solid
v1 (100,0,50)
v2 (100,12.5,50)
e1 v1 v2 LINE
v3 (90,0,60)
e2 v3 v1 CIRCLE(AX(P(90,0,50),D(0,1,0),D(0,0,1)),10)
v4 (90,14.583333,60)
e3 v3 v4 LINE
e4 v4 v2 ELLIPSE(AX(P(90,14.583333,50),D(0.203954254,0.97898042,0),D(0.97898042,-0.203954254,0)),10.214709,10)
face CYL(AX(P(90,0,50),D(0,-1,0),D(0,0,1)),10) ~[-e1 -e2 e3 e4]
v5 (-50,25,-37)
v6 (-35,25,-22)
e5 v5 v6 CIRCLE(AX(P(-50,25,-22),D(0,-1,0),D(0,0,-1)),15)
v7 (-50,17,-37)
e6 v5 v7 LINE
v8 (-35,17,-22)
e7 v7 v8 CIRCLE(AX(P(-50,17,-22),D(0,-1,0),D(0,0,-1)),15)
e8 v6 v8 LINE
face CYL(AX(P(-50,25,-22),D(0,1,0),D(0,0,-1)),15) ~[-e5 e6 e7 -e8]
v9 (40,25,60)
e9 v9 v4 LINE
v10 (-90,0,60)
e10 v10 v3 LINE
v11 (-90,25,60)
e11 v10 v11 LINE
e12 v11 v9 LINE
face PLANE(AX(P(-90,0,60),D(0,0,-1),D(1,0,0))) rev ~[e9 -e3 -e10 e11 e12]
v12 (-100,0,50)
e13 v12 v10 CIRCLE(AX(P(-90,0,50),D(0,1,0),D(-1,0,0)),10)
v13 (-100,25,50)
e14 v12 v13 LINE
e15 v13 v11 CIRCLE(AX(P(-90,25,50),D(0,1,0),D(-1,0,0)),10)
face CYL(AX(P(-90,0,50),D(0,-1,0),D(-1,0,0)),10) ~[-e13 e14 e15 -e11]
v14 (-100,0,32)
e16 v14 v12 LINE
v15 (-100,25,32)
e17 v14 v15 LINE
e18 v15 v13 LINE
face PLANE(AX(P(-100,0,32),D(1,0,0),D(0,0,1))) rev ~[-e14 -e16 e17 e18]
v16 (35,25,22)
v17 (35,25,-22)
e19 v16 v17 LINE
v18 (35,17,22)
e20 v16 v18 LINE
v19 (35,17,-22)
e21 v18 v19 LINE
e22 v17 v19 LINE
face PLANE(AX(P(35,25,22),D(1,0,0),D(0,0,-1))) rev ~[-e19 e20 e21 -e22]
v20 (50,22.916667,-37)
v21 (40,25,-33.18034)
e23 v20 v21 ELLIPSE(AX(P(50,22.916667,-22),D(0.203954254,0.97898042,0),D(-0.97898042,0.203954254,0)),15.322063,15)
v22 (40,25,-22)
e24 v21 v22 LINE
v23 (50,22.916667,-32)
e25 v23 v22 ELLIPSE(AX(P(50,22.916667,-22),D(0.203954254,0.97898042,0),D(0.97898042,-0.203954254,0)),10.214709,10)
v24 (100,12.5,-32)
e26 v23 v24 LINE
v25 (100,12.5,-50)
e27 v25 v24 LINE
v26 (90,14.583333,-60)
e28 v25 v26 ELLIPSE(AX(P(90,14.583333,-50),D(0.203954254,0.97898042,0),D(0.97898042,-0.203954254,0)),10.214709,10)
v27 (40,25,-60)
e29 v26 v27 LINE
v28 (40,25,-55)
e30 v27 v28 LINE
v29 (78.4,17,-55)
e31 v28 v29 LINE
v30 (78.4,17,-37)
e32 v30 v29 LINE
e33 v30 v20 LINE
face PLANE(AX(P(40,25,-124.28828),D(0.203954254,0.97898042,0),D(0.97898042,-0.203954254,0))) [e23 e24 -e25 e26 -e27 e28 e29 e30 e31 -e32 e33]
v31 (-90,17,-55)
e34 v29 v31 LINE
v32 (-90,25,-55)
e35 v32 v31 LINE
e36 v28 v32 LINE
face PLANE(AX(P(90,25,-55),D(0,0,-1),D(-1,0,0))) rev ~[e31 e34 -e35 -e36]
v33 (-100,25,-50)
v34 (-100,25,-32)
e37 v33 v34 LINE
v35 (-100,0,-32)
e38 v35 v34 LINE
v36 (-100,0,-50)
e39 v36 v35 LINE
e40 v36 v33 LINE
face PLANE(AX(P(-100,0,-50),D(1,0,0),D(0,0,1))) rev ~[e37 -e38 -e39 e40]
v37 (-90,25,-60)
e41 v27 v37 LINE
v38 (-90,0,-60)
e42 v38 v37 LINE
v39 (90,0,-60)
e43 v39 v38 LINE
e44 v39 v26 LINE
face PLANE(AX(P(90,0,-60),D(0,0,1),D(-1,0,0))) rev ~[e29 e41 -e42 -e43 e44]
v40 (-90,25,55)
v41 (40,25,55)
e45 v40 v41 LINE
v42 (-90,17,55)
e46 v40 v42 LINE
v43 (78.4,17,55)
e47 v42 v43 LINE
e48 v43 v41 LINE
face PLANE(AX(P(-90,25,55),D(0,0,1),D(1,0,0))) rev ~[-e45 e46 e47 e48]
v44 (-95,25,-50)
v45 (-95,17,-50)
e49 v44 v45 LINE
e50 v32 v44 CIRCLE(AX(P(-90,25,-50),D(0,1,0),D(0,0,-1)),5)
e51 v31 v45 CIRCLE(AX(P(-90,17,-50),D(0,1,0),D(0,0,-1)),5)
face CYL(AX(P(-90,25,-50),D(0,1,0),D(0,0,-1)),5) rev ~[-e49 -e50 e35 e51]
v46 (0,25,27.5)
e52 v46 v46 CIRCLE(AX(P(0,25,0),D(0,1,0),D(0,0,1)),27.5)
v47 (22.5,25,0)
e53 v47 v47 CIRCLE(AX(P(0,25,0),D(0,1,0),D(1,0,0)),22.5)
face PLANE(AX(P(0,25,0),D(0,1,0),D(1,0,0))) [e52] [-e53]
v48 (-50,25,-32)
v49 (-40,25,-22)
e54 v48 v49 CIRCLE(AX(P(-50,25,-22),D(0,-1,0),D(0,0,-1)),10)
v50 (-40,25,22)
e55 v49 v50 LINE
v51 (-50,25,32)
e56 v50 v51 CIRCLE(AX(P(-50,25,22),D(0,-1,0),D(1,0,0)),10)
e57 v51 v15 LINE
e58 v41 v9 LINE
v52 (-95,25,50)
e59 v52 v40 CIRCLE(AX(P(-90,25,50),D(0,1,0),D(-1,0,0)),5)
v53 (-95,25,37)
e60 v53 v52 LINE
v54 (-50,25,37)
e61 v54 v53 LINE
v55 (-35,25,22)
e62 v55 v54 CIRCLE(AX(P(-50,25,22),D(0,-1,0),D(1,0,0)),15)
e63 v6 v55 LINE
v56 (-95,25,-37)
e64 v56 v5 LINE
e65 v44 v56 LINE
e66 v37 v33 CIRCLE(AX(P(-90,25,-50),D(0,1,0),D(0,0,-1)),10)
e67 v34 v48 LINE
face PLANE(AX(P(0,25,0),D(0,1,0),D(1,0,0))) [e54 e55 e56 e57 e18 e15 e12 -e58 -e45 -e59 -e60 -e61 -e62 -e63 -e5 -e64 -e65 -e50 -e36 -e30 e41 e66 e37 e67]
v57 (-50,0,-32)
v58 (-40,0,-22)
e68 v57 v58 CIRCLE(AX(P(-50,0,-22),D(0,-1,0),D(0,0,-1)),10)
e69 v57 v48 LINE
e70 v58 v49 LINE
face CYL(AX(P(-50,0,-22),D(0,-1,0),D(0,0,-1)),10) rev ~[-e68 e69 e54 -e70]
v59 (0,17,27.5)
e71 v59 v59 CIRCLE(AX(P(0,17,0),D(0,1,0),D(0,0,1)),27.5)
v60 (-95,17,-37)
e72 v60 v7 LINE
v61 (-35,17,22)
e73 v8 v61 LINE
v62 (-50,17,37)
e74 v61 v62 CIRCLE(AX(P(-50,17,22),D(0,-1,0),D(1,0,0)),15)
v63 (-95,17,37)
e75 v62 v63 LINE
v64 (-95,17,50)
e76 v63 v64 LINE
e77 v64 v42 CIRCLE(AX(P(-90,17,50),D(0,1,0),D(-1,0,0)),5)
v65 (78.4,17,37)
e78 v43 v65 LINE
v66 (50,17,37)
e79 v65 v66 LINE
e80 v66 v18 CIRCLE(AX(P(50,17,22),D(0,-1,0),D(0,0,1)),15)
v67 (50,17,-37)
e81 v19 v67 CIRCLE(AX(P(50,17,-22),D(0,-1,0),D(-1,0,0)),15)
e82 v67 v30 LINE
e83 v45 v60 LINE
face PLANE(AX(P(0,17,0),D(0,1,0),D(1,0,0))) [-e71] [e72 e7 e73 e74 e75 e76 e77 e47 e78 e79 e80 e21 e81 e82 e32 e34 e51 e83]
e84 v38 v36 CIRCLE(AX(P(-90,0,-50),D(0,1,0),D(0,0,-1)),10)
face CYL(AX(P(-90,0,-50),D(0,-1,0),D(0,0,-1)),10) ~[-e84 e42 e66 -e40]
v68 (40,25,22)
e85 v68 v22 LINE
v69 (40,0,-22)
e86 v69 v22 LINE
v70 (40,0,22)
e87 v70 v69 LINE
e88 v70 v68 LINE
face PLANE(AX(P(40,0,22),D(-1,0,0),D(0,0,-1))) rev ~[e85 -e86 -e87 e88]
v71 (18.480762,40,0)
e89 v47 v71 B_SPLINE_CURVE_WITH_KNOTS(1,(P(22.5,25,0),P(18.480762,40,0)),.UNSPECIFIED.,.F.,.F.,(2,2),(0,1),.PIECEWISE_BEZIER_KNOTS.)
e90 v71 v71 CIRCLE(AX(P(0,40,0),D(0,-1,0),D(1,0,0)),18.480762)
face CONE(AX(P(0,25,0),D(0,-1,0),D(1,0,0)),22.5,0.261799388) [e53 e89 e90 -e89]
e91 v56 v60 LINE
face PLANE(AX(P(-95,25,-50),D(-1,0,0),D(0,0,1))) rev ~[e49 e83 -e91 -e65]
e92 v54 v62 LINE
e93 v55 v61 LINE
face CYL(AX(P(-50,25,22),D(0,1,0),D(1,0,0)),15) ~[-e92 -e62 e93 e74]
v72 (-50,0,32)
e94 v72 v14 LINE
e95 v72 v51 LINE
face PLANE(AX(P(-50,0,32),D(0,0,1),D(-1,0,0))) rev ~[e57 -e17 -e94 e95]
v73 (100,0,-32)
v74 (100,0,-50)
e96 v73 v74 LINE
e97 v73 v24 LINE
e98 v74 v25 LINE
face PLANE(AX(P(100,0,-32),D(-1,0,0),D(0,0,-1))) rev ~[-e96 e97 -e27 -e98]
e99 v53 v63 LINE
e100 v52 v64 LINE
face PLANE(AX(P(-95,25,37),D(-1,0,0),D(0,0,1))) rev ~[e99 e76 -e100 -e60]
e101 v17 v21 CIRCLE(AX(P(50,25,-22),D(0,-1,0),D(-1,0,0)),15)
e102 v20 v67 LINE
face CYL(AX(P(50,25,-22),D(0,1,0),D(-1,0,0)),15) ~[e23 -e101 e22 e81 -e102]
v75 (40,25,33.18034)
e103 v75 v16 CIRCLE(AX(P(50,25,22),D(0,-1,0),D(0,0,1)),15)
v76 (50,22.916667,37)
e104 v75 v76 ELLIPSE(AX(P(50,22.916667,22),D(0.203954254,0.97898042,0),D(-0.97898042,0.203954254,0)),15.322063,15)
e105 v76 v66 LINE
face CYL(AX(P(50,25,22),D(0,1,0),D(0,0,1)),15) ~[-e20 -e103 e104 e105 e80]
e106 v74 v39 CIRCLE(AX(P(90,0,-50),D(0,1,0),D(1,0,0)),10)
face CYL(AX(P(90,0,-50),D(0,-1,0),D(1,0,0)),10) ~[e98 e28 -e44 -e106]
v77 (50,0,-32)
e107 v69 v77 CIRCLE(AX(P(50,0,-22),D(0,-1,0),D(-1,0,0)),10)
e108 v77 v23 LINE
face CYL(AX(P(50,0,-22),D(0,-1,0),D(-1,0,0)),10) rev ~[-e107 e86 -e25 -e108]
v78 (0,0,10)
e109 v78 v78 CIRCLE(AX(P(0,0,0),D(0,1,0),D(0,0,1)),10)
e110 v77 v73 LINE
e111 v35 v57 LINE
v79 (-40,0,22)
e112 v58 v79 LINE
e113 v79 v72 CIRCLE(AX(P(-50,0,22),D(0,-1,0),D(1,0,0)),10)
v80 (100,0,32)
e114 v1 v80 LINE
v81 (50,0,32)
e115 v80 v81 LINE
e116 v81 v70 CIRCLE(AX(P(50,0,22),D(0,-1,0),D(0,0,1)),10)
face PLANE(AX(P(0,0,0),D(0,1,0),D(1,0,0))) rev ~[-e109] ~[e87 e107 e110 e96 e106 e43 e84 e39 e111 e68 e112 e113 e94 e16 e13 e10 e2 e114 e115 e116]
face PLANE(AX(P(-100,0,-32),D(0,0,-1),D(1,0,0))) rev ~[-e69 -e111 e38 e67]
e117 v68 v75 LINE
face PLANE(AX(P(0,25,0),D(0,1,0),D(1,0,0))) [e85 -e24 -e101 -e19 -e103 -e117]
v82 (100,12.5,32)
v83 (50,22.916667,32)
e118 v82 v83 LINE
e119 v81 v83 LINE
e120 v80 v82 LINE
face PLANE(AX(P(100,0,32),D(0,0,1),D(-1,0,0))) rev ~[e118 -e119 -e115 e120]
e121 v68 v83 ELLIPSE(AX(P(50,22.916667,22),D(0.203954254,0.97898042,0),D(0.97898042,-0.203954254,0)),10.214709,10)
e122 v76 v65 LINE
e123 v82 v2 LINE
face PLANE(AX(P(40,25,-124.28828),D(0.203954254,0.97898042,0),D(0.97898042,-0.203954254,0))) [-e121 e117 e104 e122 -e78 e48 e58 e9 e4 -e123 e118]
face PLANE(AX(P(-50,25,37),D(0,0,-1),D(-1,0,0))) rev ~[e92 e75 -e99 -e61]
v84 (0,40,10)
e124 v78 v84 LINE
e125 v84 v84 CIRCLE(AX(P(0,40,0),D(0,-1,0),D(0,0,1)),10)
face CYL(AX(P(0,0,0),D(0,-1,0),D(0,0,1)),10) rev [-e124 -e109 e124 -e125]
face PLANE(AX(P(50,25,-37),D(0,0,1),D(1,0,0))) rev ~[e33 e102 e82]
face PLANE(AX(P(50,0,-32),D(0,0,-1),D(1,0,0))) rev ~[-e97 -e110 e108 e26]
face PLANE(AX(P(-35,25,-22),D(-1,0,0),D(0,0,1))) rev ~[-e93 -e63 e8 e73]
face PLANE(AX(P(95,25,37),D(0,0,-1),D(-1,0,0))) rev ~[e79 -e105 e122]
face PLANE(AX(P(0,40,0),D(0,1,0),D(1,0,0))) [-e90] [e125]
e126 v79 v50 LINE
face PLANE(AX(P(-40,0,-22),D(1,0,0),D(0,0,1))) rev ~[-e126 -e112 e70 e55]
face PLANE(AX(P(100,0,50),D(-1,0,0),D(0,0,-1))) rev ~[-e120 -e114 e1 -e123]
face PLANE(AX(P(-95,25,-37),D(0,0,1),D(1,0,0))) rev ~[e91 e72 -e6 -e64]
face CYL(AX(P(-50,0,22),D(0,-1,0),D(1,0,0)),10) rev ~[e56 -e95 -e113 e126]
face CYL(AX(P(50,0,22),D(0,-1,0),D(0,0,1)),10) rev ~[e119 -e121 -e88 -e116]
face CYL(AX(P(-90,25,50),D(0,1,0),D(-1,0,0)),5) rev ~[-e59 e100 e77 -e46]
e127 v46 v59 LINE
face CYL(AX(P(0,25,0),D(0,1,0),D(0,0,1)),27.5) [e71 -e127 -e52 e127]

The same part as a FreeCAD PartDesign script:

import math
import FreeCAD as App
import Part
import Sketcher

V = App.Vector
Q = App.Units.Quantity

doc = App.newDocument("Part")
body = doc.addObject("PartDesign::Body", "Body")

sketch1 = body.newObject("Sketcher::SketchObject", "Sketch")
sketch1.AttachmentSupport = (doc.getObject("XZ_Plane"), [""])
sketch1.MapMode = "FlatFace"
sketch1.addGeometry(Part.LineSegment(V(-90, 60, 0), V(90, 60, 0)), False)
sketch1.addGeometry(Part.ArcOfCircle(Part.Circle(V(90, 50, 0), V(0, 0, 1), 10), math.radians(0), math.radians(90)), False)
sketch1.addGeometry(Part.LineSegment(V(100, 50, 0), V(100, 32, 0)), False)
sketch1.addGeometry(Part.LineSegment(V(100, 32, 0), V(50, 32, 0)), False)
sketch1.addGeometry(Part.ArcOfCircle(Part.Circle(V(50, 22, 0), V(0, 0, 1), 10), math.radians(90), math.radians(180)), False)
sketch1.addGeometry(Part.LineSegment(V(40, 22, 0), V(40, -22, 0)), False)
sketch1.addGeometry(Part.ArcOfCircle(Part.Circle(V(50, -22, 0), V(0, 0, 1), 10), math.radians(180), math.radians(270)), False)
sketch1.addGeometry(Part.LineSegment(V(50, -32, 0), V(100, -32, 0)), False)
sketch1.addGeometry(Part.LineSegment(V(100, -32, 0), V(100, -50, 0)), False)
sketch1.addGeometry(Part.ArcOfCircle(Part.Circle(V(90, -50, 0), V(0, 0, 1), 10), math.radians(-90), math.radians(0)), False)
sketch1.addGeometry(Part.LineSegment(V(90, -60, 0), V(-90, -60, 0)), False)
sketch1.addGeometry(Part.ArcOfCircle(Part.Circle(V(-90, -50, 0), V(0, 0, 1), 10), math.radians(180), math.radians(270)), False)
sketch1.addGeometry(Part.LineSegment(V(-100, -50, 0), V(-100, -32, 0)), False)
sketch1.addGeometry(Part.LineSegment(V(-100, -32, 0), V(-50, -32, 0)), False)
sketch1.addGeometry(Part.ArcOfCircle(Part.Circle(V(-50, -22, 0), V(0, 0, 1), 10), math.radians(-90), math.radians(0)), False)
sketch1.addGeometry(Part.LineSegment(V(-40, -22, 0), V(-40, 22, 0)), False)
sketch1.addGeometry(Part.ArcOfCircle(Part.Circle(V(-50, 22, 0), V(0, 0, 1), 10), math.radians(0), math.radians(90)), False)
sketch1.addGeometry(Part.LineSegment(V(-50, 32, 0), V(-100, 32, 0)), False)
sketch1.addGeometry(Part.LineSegment(V(-100, 32, 0), V(-100, 50, 0)), False)
sketch1.addGeometry(Part.ArcOfCircle(Part.Circle(V(-90, 50, 0), V(0, 0, 1), 10), math.radians(90), math.radians(180)), False)
sketch1.addConstraint(Sketcher.Constraint("Tangent", 0, 2, 1, 2))
sketch1.addConstraint(Sketcher.Constraint("Tangent", 1, 1, 2, 1))
sketch1.addConstraint(Sketcher.Constraint("Coincident", 2, 2, 3, 1))
sketch1.addConstraint(Sketcher.Constraint("Tangent", 3, 2, 4, 1))
sketch1.addConstraint(Sketcher.Constraint("Tangent", 4, 2, 5, 1))
sketch1.addConstraint(Sketcher.Constraint("Tangent", 5, 2, 6, 1))
sketch1.addConstraint(Sketcher.Constraint("Tangent", 6, 2, 7, 1))
sketch1.addConstraint(Sketcher.Constraint("Coincident", 7, 2, 8, 1))
sketch1.addConstraint(Sketcher.Constraint("Tangent", 8, 2, 9, 2))
sketch1.addConstraint(Sketcher.Constraint("Tangent", 9, 1, 10, 1))
sketch1.addConstraint(Sketcher.Constraint("Tangent", 10, 2, 11, 2))
sketch1.addConstraint(Sketcher.Constraint("Tangent", 11, 1, 12, 1))
sketch1.addConstraint(Sketcher.Constraint("Coincident", 12, 2, 13, 1))
sketch1.addConstraint(Sketcher.Constraint("Tangent", 13, 2, 14, 1))
sketch1.addConstraint(Sketcher.Constraint("Tangent", 14, 2, 15, 1))
sketch1.addConstraint(Sketcher.Constraint("Tangent", 15, 2, 16, 1))
sketch1.addConstraint(Sketcher.Constraint("Tangent", 16, 2, 17, 1))
sketch1.addConstraint(Sketcher.Constraint("Coincident", 17, 2, 18, 1))
sketch1.addConstraint(Sketcher.Constraint("Tangent", 18, 2, 19, 2))
sketch1.addConstraint(Sketcher.Constraint("Tangent", 19, 1, 0, 1))
sketch1.addConstraint(Sketcher.Constraint("Horizontal", 0))
sketch1.addConstraint(Sketcher.Constraint("Vertical", 2))
sketch1.addConstraint(Sketcher.Constraint("Horizontal", 3))
sketch1.addConstraint(Sketcher.Constraint("Vertical", 5))
sketch1.addConstraint(Sketcher.Constraint("Horizontal", 7))
sketch1.addConstraint(Sketcher.Constraint("Vertical", 8))
sketch1.addConstraint(Sketcher.Constraint("Horizontal", 10))
sketch1.addConstraint(Sketcher.Constraint("Vertical", 12))
sketch1.addConstraint(Sketcher.Constraint("Horizontal", 13))
sketch1.addConstraint(Sketcher.Constraint("Vertical", 15))
sketch1.addConstraint(Sketcher.Constraint("Horizontal", 17))
sketch1.addConstraint(Sketcher.Constraint("Vertical", 18))
sketch1.addConstraint(Sketcher.Constraint("Equal", 1, 4))
sketch1.addConstraint(Sketcher.Constraint("Equal", 4, 6))
sketch1.addConstraint(Sketcher.Constraint("Equal", 6, 9))
sketch1.addConstraint(Sketcher.Constraint("Equal", 9, 11))
sketch1.addConstraint(Sketcher.Constraint("Equal", 11, 14))
sketch1.addConstraint(Sketcher.Constraint("Equal", 14, 16))
sketch1.addConstraint(Sketcher.Constraint("Equal", 16, 19))
sketch1.addConstraint(Sketcher.Constraint("Symmetric", 1, 3, 11, 3, -1, 1))
sketch1.addConstraint(Sketcher.Constraint("Symmetric", 4, 3, 14, 3, -1, 1))
sketch1.addConstraint(Sketcher.Constraint("Symmetric", 7, 2, 17, 2, -1, 1))
sketch1.addConstraint(Sketcher.Constraint("Symmetric", 7, 2, 12, 2, -2))
sketch1.addConstraint(Sketcher.Constraint("Radius", 1, Q("10 mm")))
sketch1.addConstraint(Sketcher.Constraint("DistanceX", 0, 1, 0, 2, Q("180 mm")))
sketch1.addConstraint(Sketcher.Constraint("DistanceX", 3, 2, 3, 1, Q("50 mm")))
sketch1.addConstraint(Sketcher.Constraint("DistanceY", 2, 2, 2, 1, Q("18 mm")))
sketch1.addConstraint(Sketcher.Constraint("DistanceY", 5, 2, 5, 1, Q("44 mm")))
pad1 = body.newObject("PartDesign::Pad", "Pad")
pad1.Profile = sketch1
pad1.Length = 25
pad1.Reversed = True

sketch2 = body.newObject("Sketcher::SketchObject", "Sketch001")
sketch2.AttachmentSupport = (doc.getObject("XZ_Plane"), [""])
sketch2.MapMode = "FlatFace"
sketch2.AttachmentOffset = App.Placement(V(0, 0, -25), App.Rotation())
sketch2.addGeometry(Part.Circle(V(0, 0, 0), V(0, 0, 1), 22.5), False)
sketch2.addConstraint(Sketcher.Constraint("Coincident", 0, 3, -1, 1))
sketch2.addConstraint(Sketcher.Constraint("Diameter", 0, Q("45 mm")))
pad2 = body.newObject("PartDesign::Pad", "Pad001")
pad2.Profile = sketch2
pad2.Length = 15
pad2.Reversed = True
pad2.TaperAngle = -15

sketch3 = body.newObject("Sketcher::SketchObject", "Sketch002")
sketch3.AttachmentSupport = (doc.getObject("XZ_Plane"), [""])
sketch3.MapMode = "FlatFace"
sketch3.AttachmentOffset = App.Placement(V(0, 0, -25), App.Rotation())
sketch3.addGeometry(Part.LineSegment(V(-95, -50, 0), V(-95, -37, 0)), False)
sketch3.addGeometry(Part.LineSegment(V(-95, -37, 0), V(-50, -37, 0)), False)
sketch3.addGeometry(Part.ArcOfCircle(Part.Circle(V(-50, -22, 0), V(0, 0, 1), 15), math.radians(-90), math.radians(0)), False)
sketch3.addGeometry(Part.LineSegment(V(-35, -22, 0), V(-35, 22, 0)), False)
sketch3.addGeometry(Part.ArcOfCircle(Part.Circle(V(-50, 22, 0), V(0, 0, 1), 15), math.radians(0), math.radians(90)), False)
sketch3.addGeometry(Part.LineSegment(V(-50, 37, 0), V(-95, 37, 0)), False)
sketch3.addGeometry(Part.LineSegment(V(-95, 37, 0), V(-95, 50, 0)), False)
sketch3.addGeometry(Part.ArcOfCircle(Part.Circle(V(-90, 50, 0), V(0, 0, 1), 5), math.radians(90), math.radians(180)), False)
sketch3.addGeometry(Part.LineSegment(V(-90, 55, 0), V(90, 55, 0)), False)
sketch3.addGeometry(Part.ArcOfCircle(Part.Circle(V(90, 50, 0), V(0, 0, 1), 5), math.radians(0), math.radians(90)), False)
sketch3.addGeometry(Part.LineSegment(V(95, 50, 0), V(95, 37, 0)), False)
sketch3.addGeometry(Part.LineSegment(V(95, 37, 0), V(50, 37, 0)), False)
sketch3.addGeometry(Part.ArcOfCircle(Part.Circle(V(50, 22, 0), V(0, 0, 1), 15), math.radians(90), math.radians(180)), False)
sketch3.addGeometry(Part.LineSegment(V(35, 22, 0), V(35, -22, 0)), False)
sketch3.addGeometry(Part.ArcOfCircle(Part.Circle(V(50, -22, 0), V(0, 0, 1), 15), math.radians(180), math.radians(270)), False)
sketch3.addGeometry(Part.LineSegment(V(50, -37, 0), V(95, -37, 0)), False)
sketch3.addGeometry(Part.LineSegment(V(95, -37, 0), V(95, -50, 0)), False)
sketch3.addGeometry(Part.ArcOfCircle(Part.Circle(V(90, -50, 0), V(0, 0, 1), 5), math.radians(-90), math.radians(0)), False)
sketch3.addGeometry(Part.LineSegment(V(90, -55, 0), V(-90, -55, 0)), False)
sketch3.addGeometry(Part.ArcOfCircle(Part.Circle(V(-90, -50, 0), V(0, 0, 1), 5), math.radians(180), math.radians(270)), False)
sketch3.addGeometry(Part.Circle(V(0, 0, 0), V(0, 0, 1), 27.5), False)
sketch3.addConstraint(Sketcher.Constraint("Coincident", 0, 2, 1, 1))
sketch3.addConstraint(Sketcher.Constraint("Tangent", 1, 2, 2, 1))
sketch3.addConstraint(Sketcher.Constraint("Tangent", 2, 2, 3, 1))
sketch3.addConstraint(Sketcher.Constraint("Tangent", 3, 2, 4, 1))
sketch3.addConstraint(Sketcher.Constraint("Tangent", 4, 2, 5, 1))
sketch3.addConstraint(Sketcher.Constraint("Coincident", 5, 2, 6, 1))
sketch3.addConstraint(Sketcher.Constraint("Tangent", 6, 2, 7, 2))
sketch3.addConstraint(Sketcher.Constraint("Tangent", 7, 1, 8, 1))
sketch3.addConstraint(Sketcher.Constraint("Tangent", 8, 2, 9, 2))
sketch3.addConstraint(Sketcher.Constraint("Tangent", 9, 1, 10, 1))
sketch3.addConstraint(Sketcher.Constraint("Coincident", 10, 2, 11, 1))
sketch3.addConstraint(Sketcher.Constraint("Tangent", 11, 2, 12, 1))
sketch3.addConstraint(Sketcher.Constraint("Tangent", 12, 2, 13, 1))
sketch3.addConstraint(Sketcher.Constraint("Tangent", 13, 2, 14, 1))
sketch3.addConstraint(Sketcher.Constraint("Tangent", 14, 2, 15, 1))
sketch3.addConstraint(Sketcher.Constraint("Coincident", 15, 2, 16, 1))
sketch3.addConstraint(Sketcher.Constraint("Tangent", 16, 2, 17, 2))
sketch3.addConstraint(Sketcher.Constraint("Tangent", 17, 1, 18, 1))
sketch3.addConstraint(Sketcher.Constraint("Tangent", 18, 2, 19, 2))
sketch3.addConstraint(Sketcher.Constraint("Tangent", 19, 1, 0, 1))
sketch3.addConstraint(Sketcher.Constraint("Vertical", 0))
sketch3.addConstraint(Sketcher.Constraint("Horizontal", 1))
sketch3.addConstraint(Sketcher.Constraint("Vertical", 3))
sketch3.addConstraint(Sketcher.Constraint("Horizontal", 5))
sketch3.addConstraint(Sketcher.Constraint("Vertical", 6))
sketch3.addConstraint(Sketcher.Constraint("Horizontal", 8))
sketch3.addConstraint(Sketcher.Constraint("Vertical", 10))
sketch3.addConstraint(Sketcher.Constraint("Horizontal", 11))
sketch3.addConstraint(Sketcher.Constraint("Vertical", 13))
sketch3.addConstraint(Sketcher.Constraint("Horizontal", 15))
sketch3.addConstraint(Sketcher.Constraint("Vertical", 16))
sketch3.addConstraint(Sketcher.Constraint("Horizontal", 18))
sketch3.addConstraint(Sketcher.Constraint("Coincident", 20, 3, -1, 1))
sketch3.addConstraint(Sketcher.Constraint("Equal", 2, 4))
sketch3.addConstraint(Sketcher.Constraint("Equal", 7, 9))
sketch3.addConstraint(Sketcher.Constraint("Equal", 4, 12))
sketch3.addConstraint(Sketcher.Constraint("Equal", 12, 14))
sketch3.addConstraint(Sketcher.Constraint("Equal", 9, 17))
sketch3.addConstraint(Sketcher.Constraint("Equal", 17, 19))
sketch3.addConstraint(Sketcher.Constraint("Symmetric", 2, 3, 12, 3, -1, 1))
sketch3.addConstraint(Sketcher.Constraint("Symmetric", 7, 3, 17, 3, -1, 1))
sketch3.addConstraint(Sketcher.Constraint("Symmetric", 5, 2, 10, 2, -2))
sketch3.addConstraint(Sketcher.Constraint("Symmetric", 0, 2, 15, 2, -2))
sketch3.addConstraint(Sketcher.Constraint("Diameter", 20, Q("55 mm")))
sketch3.addConstraint(Sketcher.Constraint("Radius", 2, Q("15 mm")))
sketch3.addConstraint(Sketcher.Constraint("Radius", 7, Q("5 mm")))
sketch3.addConstraint(Sketcher.Constraint("DistanceX", 1, 1, 1, 2, Q("45 mm")))
sketch3.addConstraint(Sketcher.Constraint("DistanceX", 8, 1, 8, 2, Q("180 mm")))
sketch3.addConstraint(Sketcher.Constraint("DistanceY", 0, 1, 0, 2, Q("13 mm")))
sketch3.addConstraint(Sketcher.Constraint("DistanceY", 3, 1, 3, 2, Q("44 mm")))
pocket1 = body.newObject("PartDesign::Pocket", "Pocket")
pocket1.Profile = sketch3
pocket1.Length = 8
pocket1.Reversed = True

sketch4 = body.newObject("Sketcher::SketchObject", "Sketch003")
sketch4.AttachmentSupport = (doc.getObject("XZ_Plane"), [""])
sketch4.MapMode = "FlatFace"
sketch4.addGeometry(Part.Circle(V(0, 0, 0), V(0, 0, 1), 10), False)
sketch4.addConstraint(Sketcher.Constraint("Coincident", 0, 3, -1, 1))
sketch4.addConstraint(Sketcher.Constraint("Diameter", 0, Q("20 mm")))
pocket2 = body.newObject("PartDesign::Pocket", "Pocket001")
pocket2.Profile = sketch4
pocket2.Type = "ThroughAll"

sketch5 = body.newObject("Sketcher::SketchObject", "Sketch004")
sketch5.AttachmentSupport = (doc.getObject("XY_Plane"), [""])
sketch5.MapMode = "FlatFace"
sketch5.addGeometry(Part.LineSegment(V(40, 25, 0), V(100, 12.5, 0)), False)
sketch5.addGeometry(Part.LineSegment(V(100, 12.5, 0), V(100, 25, 0)), False)
sketch5.addGeometry(Part.LineSegment(V(100, 25, 0), V(40, 25, 0)), False)
sketch5.addConstraint(Sketcher.Constraint("Coincident", 0, 2, 1, 1))
sketch5.addConstraint(Sketcher.Constraint("Coincident", 1, 2, 2, 1))
sketch5.addConstraint(Sketcher.Constraint("Coincident", 2, 2, 0, 1))
sketch5.addConstraint(Sketcher.Constraint("Vertical", 1))
sketch5.addConstraint(Sketcher.Constraint("Horizontal", 2))
sketch5.addConstraint(Sketcher.Constraint("DistanceX", 2, 2, 2, 1, Q("60 mm")))
sketch5.addConstraint(Sketcher.Constraint("DistanceY", 1, 1, 1, 2, Q("12.5 mm")))
sketch5.addConstraint(Sketcher.Constraint("DistanceX", -1, 1, 0, 2, Q("100 mm")))
sketch5.addConstraint(Sketcher.Constraint("DistanceY", -1, 1, 1, 2, Q("25 mm")))
pocket3 = body.newObject("PartDesign::Pocket", "Pocket002")
pocket3.Profile = sketch5
pocket3.Type = "ThroughAll"
pocket3.Midplane = True

doc.recompute()
